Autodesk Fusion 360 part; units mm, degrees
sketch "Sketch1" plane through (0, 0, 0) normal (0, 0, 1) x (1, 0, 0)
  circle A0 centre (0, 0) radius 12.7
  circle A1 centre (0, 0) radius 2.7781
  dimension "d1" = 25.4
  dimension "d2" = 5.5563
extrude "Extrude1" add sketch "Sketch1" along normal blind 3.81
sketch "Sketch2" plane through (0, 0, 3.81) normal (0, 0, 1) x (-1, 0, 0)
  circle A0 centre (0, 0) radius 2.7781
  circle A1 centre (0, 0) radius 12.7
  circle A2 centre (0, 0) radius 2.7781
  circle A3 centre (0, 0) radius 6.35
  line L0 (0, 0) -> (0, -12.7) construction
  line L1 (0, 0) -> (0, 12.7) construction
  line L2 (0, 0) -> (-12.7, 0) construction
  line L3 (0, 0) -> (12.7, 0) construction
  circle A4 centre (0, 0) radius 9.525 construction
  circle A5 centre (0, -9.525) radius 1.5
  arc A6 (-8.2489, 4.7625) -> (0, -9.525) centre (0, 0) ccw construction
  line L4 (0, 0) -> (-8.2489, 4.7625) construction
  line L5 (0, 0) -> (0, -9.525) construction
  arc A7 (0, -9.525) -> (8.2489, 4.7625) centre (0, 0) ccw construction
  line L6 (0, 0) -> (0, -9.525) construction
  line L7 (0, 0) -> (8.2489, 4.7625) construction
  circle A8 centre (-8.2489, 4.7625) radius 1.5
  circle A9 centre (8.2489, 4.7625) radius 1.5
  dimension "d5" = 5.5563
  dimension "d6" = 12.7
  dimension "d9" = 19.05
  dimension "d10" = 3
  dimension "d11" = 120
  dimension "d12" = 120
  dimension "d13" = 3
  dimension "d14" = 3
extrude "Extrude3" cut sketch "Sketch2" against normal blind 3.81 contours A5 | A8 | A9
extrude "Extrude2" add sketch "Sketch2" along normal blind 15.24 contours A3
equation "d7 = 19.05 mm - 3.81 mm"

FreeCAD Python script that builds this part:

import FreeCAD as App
import Part
import Sketcher

V = App.Vector
Q = App.Units.Quantity

doc = App.newDocument("Part")
body = doc.addObject("PartDesign::Body", "Body")

# Sketch on XY plane
sketch1 = body.newObject("Sketcher::SketchObject", "Sketch")
sketch1.AttachmentSupport = (doc.getObject("XY_Plane"), [""])
sketch1.MapMode = "FlatFace"
sketch1.addGeometry([
    Part.Circle(V(0, 0, 0), V(0, 0, 1), 12.7),
    Part.Circle(V(0, 0, 0), V(0, 0, 1), 2.8),
], False)
sketch1.addConstraint([
    Sketcher.Constraint("Coincident", 0, 3, -1, 1),
    Sketcher.Constraint("Coincident", 1, 3, -1, 1),
    Sketcher.Constraint("Diameter", 0, Q("1 in")),
    Sketcher.Constraint("Diameter", 1, Q("0.218748 in")),
])
pad1 = body.newObject("PartDesign::Pad", "Pad")
pad1.Profile = sketch1
pad1.Length = Q("0.15 in")

# Sketch on XY plane
sketch2 = body.newObject("Sketcher::SketchObject", "Sketch001")
sketch2.AttachmentSupport = (doc.getObject("XY_Plane"), [""])
sketch2.MapMode = "FlatFace"
sketch2.AttachmentOffset = App.Placement(V(0, 0, 0.15 * 25.4), App.Rotation())
sketch2.addGeometry([
    Part.Circle(V(0, 9.5, 0), V(0, 0, 1), 1.5),
    Part.Circle(V(8.2, -4.8, 0), V(0, 0, 1), 1.5),
    Part.Circle(V(-8.2, -4.8, 0), V(0, 0, 1), 1.5),
], False)
sketch2.addConstraint([
    Sketcher.Constraint("Equal", 0, 1),
    Sketcher.Constraint("Equal", 1, 2),
    Sketcher.Constraint("Symmetric", 1, 3, 2, 3, -2),
    Sketcher.Constraint("PointOnObject", 0, 3, -2),
    Sketcher.Constraint("Diameter", 0, Q("0.1181 in")),
    Sketcher.Constraint("DistanceY", -1, 1, 0, 3, Q("0.375 in")),
    Sketcher.Constraint("DistanceY", 1, 3, -1, 1, Q("0.1875 in")),
    Sketcher.Constraint("DistanceX", -1, 1, 1, 3, 8.249),
])
pocket1 = body.newObject("PartDesign::Pocket", "Pocket")
pocket1.Profile = sketch2
pocket1.Length = Q("0.15 in")

# Sketch on XY plane
sketch3 = body.newObject("Sketcher::SketchObject", "Sketch002")
sketch3.AttachmentSupport = (doc.getObject("XY_Plane"), [""])
sketch3.MapMode = "FlatFace"
sketch3.AttachmentOffset = App.Placement(V(0, 0, 0.15 * 25.4), App.Rotation())
sketch3.addGeometry([
    Part.Circle(V(0, 0, 0), V(0, 0, 1), 6.3),
    Part.Circle(V(0, 0, 0), V(0, 0, 1), 2.8),
], False)
sketch3.addConstraint([
    Sketcher.Constraint("Coincident", 0, 3, -1, 1),
    Sketcher.Constraint("Coincident", 1, 3, -1, 1),
    Sketcher.Constraint("Diameter", 0, Q("0.5 in")),
    Sketcher.Constraint("Diameter", 1, Q("0.218748 in")),
])
pad2 = body.newObject("PartDesign::Pad", "Pad001")
pad2.Profile = sketch3
pad2.Length = Q("0.6 in")

doc.recompute()
